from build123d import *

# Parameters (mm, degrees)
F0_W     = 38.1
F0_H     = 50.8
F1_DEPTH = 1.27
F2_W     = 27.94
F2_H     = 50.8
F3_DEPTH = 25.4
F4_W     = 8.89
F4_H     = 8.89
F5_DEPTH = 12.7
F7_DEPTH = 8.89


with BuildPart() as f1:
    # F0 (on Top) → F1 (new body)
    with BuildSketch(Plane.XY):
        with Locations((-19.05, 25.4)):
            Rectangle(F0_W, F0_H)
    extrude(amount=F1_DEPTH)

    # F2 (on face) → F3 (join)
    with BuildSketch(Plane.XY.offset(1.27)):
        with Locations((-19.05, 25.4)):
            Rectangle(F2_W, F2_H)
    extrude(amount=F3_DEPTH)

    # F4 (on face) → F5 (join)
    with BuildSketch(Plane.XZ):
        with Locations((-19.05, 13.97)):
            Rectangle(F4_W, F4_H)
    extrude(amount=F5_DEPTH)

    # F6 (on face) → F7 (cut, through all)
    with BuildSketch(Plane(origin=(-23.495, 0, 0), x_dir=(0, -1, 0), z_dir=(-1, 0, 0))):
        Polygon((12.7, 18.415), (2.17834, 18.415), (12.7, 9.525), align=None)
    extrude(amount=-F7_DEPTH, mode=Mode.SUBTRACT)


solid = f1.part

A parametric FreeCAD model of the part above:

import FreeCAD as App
import Part
import Sketcher
from FreeCAD import Vector
Q = App.Units.Quantity


def add_polygon(sketch, points):
    """Adds a closed chain of lines whose ends are joined by coincident constraints."""
    first, n = sketch.GeometryCount, len(points)
    for a, b in zip(points, points[1:] + points[:1]):
        sketch.addGeometry(Part.LineSegment(App.Vector(*a, 0), App.Vector(*b, 0)), False)
    for i in range(n):
        sketch.addConstraint(Sketcher.Constraint("Coincident", first + i, 2, first + (i + 1) % n, 1))

doc = App.newDocument("Part")
params = doc.addObject("Spreadsheet::Sheet", "Params")
for row, (alias, value) in enumerate([
    ("sketch1_height", "2 in"),
    ("sketch1_width", "1.5 in"),
    ("pad1_length", "0.05 in"),
    ("sketch2_height", "2 in"),
    ("sketch2_width", "1.1 in"),
    ("pad2_length", "1 in"),
    ("sketch3_width", "0.35 in"),
    ("pad3_length", "0.5 in"),
    ("sketch4_height", "0.35 in"),
], start=1):
    params.set(f"A{row}", alias)
    params.set(f"B{row}", "=" + value)
    params.setAlias(f"B{row}", alias)

body = doc.addObject("PartDesign::Body", "Body")

sketch1 = body.newObject("Sketcher::SketchObject", "Sketch")
sketch1.AttachmentSupport = (doc.getObject("XY_Plane"), [""])
sketch1.MapMode = "FlatFace"
add_polygon(sketch1, [(-38, 51), (-38, 0), (0, 0), (0, 51)])
sketch1.addConstraint([
    Sketcher.Constraint("Vertical", 0),
    Sketcher.Constraint("Horizontal", 1),
    Sketcher.Constraint("Vertical", 2),
    Sketcher.Constraint("Horizontal", 3),
    Sketcher.Constraint("Coincident", 1, 2, -1, 1),
    Sketcher.Constraint("DistanceY", 0, 2, 0, 1, Q("2 in")),
    Sketcher.Constraint("DistanceX", 1, 1, 1, 2, Q("1.5 in")),
])
sketch1.setExpression("Constraints[9]", "Params.sketch1_height")
sketch1.setExpression("Constraints[10]", "Params.sketch1_width")
pad1 = body.newObject("PartDesign::Pad", "Pad")
pad1.Profile = sketch1
pad1.setExpression("Length", "Params.pad1_length")

sketch2 = body.newObject("Sketcher::SketchObject", "Sketch001")
sketch2.AttachmentSupport = (doc.getObject("XY_Plane"), [""])
sketch2.MapMode = "FlatFace"
sketch2.AttachmentOffset = App.Placement(Vector(0, 0, 0.05 * 25.4), App.Rotation())
add_polygon(sketch2, [(-33, 51), (-33, 0), (-5, 0), (-5, 51)])
sketch2.addConstraint([
    Sketcher.Constraint("Vertical", 0),
    Sketcher.Constraint("Horizontal", 1),
    Sketcher.Constraint("Vertical", 2),
    Sketcher.Constraint("Horizontal", 3),
    Sketcher.Constraint("PointOnObject", 0, 2, -1),
    Sketcher.Constraint("DistanceY", 0, 2, 0, 1, Q("2 in")),
    Sketcher.Constraint("DistanceX", 1, 1, 1, 2, Q("1.1 in")),
    Sketcher.Constraint("DistanceX", 0, 2, -1, 1, Q("1.3 in")),
])
sketch2.setExpression("Constraints[9]", "Params.sketch2_height")
sketch2.setExpression("Constraints[10]", "Params.sketch2_width")
pad2 = body.newObject("PartDesign::Pad", "Pad001")
pad2.Profile = sketch2
pad2.setExpression("Length", "Params.pad2_length")

sketch3 = body.newObject("Sketcher::SketchObject", "Sketch002")
sketch3.AttachmentSupport = (doc.getObject("XZ_Plane"), [""])
sketch3.MapMode = "FlatFace"
add_polygon(sketch3, [(-23, 18), (-23, 10), (-15, 10), (-15, 18)])
sketch3.addConstraint([
    Sketcher.Constraint("Vertical", 0),
    Sketcher.Constraint("Horizontal", 1),
    Sketcher.Constraint("Vertical", 2),
    Sketcher.Constraint("Horizontal", 3),
    Sketcher.Constraint("Equal", 3, 0),
    Sketcher.Constraint("DistanceX", 1, 1, 1, 2, Q("0.35 in")),
    Sketcher.Constraint("DistanceX", 0, 2, -1, 1, Q("0.925 in")),
    Sketcher.Constraint("DistanceY", -1, 1, 0, 2, Q("0.375 in")),
])
sketch3.setExpression("Constraints[9]", "Params.sketch3_width")
pad3 = body.newObject("PartDesign::Pad", "Pad002")
pad3.Profile = sketch3
pad3.setExpression("Length", "Params.pad3_length")

sketch4 = body.newObject("Sketcher::SketchObject", "Sketch003")
sketch4.AttachmentSupport = (doc.getObject("YZ_Plane"), [""])
sketch4.MapMode = "FlatFace"
sketch4.AttachmentOffset = App.Placement(Vector(0, 0, -0.925 * 25.4), App.Rotation())
add_polygon(sketch4, [(-13, 18), (-2, 18), (-13, 10)])
sketch4.addConstraint([
    Sketcher.Constraint("Horizontal", 0),
    Sketcher.Constraint("Vertical", 2),
    Sketcher.Constraint("DistanceY", 2, 1, 2, 2, Q("0.35 in")),
    Sketcher.Constraint("DistanceX", 1, 2, -1, 1, Q("0.5 in")),
    Sketcher.Constraint("DistanceY", -1, 1, 0, 2, Q("0.725 in")),
    Sketcher.Constraint("DistanceX", 0, 1, 0, 2, 10.52166),
])
sketch4.setExpression("Constraints[5]", "Params.sketch4_height")
pocket1 = body.newObject("PartDesign::Pocket", "Pocket")
pocket1.Profile = sketch4
pocket1.Type = "ThroughAll"
pocket1.Reversed = True

doc.recompute()
